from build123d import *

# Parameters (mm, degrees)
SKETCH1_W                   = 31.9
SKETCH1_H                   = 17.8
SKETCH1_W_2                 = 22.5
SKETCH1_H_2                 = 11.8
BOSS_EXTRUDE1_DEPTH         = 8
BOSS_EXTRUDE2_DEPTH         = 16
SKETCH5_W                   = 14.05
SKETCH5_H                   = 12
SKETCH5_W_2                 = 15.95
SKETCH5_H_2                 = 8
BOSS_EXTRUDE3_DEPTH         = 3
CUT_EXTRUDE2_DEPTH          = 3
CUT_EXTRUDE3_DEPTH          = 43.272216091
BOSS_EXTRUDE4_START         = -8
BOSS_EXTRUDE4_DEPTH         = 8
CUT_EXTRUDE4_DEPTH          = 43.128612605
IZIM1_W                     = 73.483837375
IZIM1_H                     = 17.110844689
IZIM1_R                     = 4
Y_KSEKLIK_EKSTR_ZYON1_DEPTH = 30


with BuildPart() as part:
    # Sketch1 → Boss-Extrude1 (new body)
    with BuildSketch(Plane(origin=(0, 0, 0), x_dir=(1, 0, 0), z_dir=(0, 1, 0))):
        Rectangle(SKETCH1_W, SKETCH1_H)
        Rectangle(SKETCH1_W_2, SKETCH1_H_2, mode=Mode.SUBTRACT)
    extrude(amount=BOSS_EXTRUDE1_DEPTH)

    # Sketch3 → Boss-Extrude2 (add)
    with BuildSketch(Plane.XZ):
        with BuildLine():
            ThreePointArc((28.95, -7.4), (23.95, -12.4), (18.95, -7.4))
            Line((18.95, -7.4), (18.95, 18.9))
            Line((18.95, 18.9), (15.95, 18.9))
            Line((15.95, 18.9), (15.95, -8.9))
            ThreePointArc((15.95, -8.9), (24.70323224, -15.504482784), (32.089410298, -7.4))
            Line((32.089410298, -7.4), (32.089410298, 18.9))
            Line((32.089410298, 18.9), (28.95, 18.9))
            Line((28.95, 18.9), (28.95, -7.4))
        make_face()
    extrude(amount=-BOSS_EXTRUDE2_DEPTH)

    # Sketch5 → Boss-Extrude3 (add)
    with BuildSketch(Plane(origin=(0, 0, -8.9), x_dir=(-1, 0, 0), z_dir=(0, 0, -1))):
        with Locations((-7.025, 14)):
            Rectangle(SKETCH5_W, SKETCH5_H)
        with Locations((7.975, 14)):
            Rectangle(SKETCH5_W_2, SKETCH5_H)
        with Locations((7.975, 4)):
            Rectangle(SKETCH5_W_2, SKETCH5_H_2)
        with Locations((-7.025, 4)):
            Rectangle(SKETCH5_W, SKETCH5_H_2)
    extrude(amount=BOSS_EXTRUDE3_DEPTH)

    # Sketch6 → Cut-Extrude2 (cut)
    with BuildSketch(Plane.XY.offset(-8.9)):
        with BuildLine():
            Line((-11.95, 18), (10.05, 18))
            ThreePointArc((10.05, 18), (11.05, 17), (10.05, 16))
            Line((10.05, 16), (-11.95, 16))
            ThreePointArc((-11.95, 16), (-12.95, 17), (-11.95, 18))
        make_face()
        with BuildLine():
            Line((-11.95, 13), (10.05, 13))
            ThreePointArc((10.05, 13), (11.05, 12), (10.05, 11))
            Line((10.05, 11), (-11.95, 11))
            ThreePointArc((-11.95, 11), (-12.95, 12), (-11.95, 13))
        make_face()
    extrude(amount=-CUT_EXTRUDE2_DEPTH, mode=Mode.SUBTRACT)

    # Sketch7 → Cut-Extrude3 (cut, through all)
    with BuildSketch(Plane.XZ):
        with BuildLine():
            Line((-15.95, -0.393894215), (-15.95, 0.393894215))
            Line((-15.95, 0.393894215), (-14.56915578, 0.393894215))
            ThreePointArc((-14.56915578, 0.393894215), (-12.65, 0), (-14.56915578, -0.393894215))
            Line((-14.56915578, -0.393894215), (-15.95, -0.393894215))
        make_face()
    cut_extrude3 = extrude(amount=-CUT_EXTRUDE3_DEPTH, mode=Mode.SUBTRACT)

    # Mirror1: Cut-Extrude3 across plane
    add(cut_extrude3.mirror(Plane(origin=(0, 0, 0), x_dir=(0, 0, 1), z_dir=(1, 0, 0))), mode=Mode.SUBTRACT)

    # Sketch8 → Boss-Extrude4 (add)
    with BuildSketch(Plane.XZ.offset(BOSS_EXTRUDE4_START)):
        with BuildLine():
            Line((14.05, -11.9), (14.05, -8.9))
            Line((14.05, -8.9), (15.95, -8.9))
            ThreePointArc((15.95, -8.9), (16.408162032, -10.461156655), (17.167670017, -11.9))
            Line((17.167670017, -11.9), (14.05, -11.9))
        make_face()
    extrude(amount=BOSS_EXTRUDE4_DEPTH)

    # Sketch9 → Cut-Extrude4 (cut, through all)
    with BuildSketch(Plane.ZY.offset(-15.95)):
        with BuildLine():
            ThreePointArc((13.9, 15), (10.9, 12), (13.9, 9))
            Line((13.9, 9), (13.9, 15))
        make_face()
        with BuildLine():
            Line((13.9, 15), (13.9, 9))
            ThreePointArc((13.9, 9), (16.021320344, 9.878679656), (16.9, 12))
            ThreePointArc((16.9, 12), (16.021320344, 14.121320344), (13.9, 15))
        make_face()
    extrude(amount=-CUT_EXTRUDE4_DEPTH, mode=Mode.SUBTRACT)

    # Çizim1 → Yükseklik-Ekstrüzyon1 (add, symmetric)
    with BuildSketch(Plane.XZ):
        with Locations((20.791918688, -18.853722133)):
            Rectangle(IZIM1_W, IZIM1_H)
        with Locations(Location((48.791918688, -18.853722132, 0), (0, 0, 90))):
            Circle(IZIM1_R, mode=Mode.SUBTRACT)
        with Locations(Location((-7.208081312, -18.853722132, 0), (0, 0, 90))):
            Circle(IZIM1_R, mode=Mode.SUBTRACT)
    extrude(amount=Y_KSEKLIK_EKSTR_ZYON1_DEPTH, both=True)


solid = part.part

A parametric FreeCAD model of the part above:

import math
import FreeCAD as App
import Part
import Sketcher
Q = App.Units.Quantity

doc = App.newDocument("Part")
body = doc.addObject("PartDesign::Body", "Body")

sketch1 = doc.addObject("Sketcher::SketchObject", "Sketch")
body.addObject(sketch1)
sketch1.AttachmentSupport = (doc.XZ_Plane, [""])
sketch1.MapMode = "FlatFace"
sketch1.addGeometry([
    Part.LineSegment(App.Vector(-15.95, -8.9, 0), App.Vector(-15.95, 8.9, 0)),
    Part.LineSegment(App.Vector(-15.95, 8.9, 0), App.Vector(15.95, 8.9, 0)),
    Part.LineSegment(App.Vector(15.95, 8.9, 0), App.Vector(15.95, -8.9, 0)),
    Part.LineSegment(App.Vector(15.95, -8.9, 0), App.Vector(-15.95, -8.9, 0)),
    Part.LineSegment(App.Vector(11.25, 5.9, 0), App.Vector(-11.25, 5.9, 0)),
    Part.LineSegment(App.Vector(-11.25, 5.9, 0), App.Vector(-11.25, -5.9, 0)),
    Part.LineSegment(App.Vector(-11.25, -5.9, 0), App.Vector(11.25, -5.9, 0)),
    Part.LineSegment(App.Vector(11.25, -5.9, 0), App.Vector(11.25, 5.9, 0)),
], False)
sketch1.addConstraint([
    Sketcher.Constraint("Coincident", 0, 2, 1, 1),
    Sketcher.Constraint("Coincident", 1, 2, 2, 1),
    Sketcher.Constraint("Coincident", 2, 2, 3, 1),
    Sketcher.Constraint("Coincident", 3, 2, 0, 1),
    Sketcher.Constraint("Coincident", 4, 2, 5, 1),
    Sketcher.Constraint("Coincident", 5, 2, 6, 1),
    Sketcher.Constraint("Coincident", 6, 2, 7, 1),
    Sketcher.Constraint("Coincident", 7, 2, 4, 1),
    Sketcher.Constraint("Vertical", 0),
    Sketcher.Constraint("Horizontal", 1),
    Sketcher.Constraint("Vertical", 2),
    Sketcher.Constraint("Horizontal", 3),
    Sketcher.Constraint("Horizontal", 4),
    Sketcher.Constraint("Vertical", 5),
    Sketcher.Constraint("Horizontal", 6),
    Sketcher.Constraint("Vertical", 7),
    Sketcher.Constraint("Symmetric", 0, 2, 2, 2, -1, 1),
    Sketcher.Constraint("Symmetric", 4, 2, 6, 2, -1, 1),
    Sketcher.Constraint("DistanceX", 1, 1, 1, 2, Q("31.9 mm")),
    Sketcher.Constraint("DistanceX", 4, 2, 4, 1, Q("22.5 mm")),
    Sketcher.Constraint("DistanceY", 0, 1, 0, 2, Q("17.8 mm")),
    Sketcher.Constraint("DistanceY", 5, 2, 5, 1, Q("11.8 mm")),
])
pad1 = doc.addObject("PartDesign::Pad", "Pad")
body.addObject(pad1)
pad1.Profile = sketch1
pad1.Length = 8
pad1.Reversed = True

sketch2 = doc.addObject("Sketcher::SketchObject", "Sketch001")
body.addObject(sketch2)
sketch2.AttachmentSupport = (doc.XZ_Plane, [""])
sketch2.MapMode = "FlatFace"
sketch2.addGeometry([
    Part.ArcOfCircle(Part.Circle(App.Vector(23.95, -7.4, 0), App.Vector(0, 0, 1), 5), math.radians(180), math.radians(360)),
    Part.LineSegment(App.Vector(18.95, -7.4, 0), App.Vector(18.95, 18.9, 0)),
    Part.LineSegment(App.Vector(18.95, 18.9, 0), App.Vector(15.95, 18.9, 0)),
    Part.LineSegment(App.Vector(15.95, 18.9, 0), App.Vector(15.95, -8.9, 0)),
    Part.ArcOfCircle(Part.Circle(App.Vector(23.95, -7.4, 0), App.Vector(0, 0, 1), 8.13941), math.radians(-169.380345), math.radians(0)),
    Part.LineSegment(App.Vector(32.08941, -7.4, 0), App.Vector(32.08941, 18.9, 0)),
    Part.LineSegment(App.Vector(32.08941, 18.9, 0), App.Vector(28.95, 18.9, 0)),
    Part.LineSegment(App.Vector(28.95, 18.9, 0), App.Vector(28.95, -7.4, 0)),
], False)
sketch2.addConstraint([
    Sketcher.Constraint("Tangent", 0, 1, 1, 1),
    Sketcher.Constraint("Coincident", 1, 2, 2, 1),
    Sketcher.Constraint("Coincident", 2, 2, 3, 1),
    Sketcher.Constraint("Coincident", 3, 2, 4, 1),
    Sketcher.Constraint("Tangent", 4, 2, 5, 1),
    Sketcher.Constraint("Coincident", 5, 2, 6, 1),
    Sketcher.Constraint("Coincident", 6, 2, 7, 1),
    Sketcher.Constraint("Tangent", 7, 2, 0, 2),
    Sketcher.Constraint("Vertical", 1),
    Sketcher.Constraint("Horizontal", 2),
    Sketcher.Constraint("Vertical", 3),
    Sketcher.Constraint("Vertical", 5),
    Sketcher.Constraint("Horizontal", 6),
    Sketcher.Constraint("Vertical", 7),
    Sketcher.Constraint("Coincident", 4, 3, 0, 3),
    Sketcher.Constraint("Horizontal", 2, 2, 5, 2),
    Sketcher.Constraint("Radius", 0, Q("5 mm")),
    Sketcher.Constraint("DistanceX", 2, 2, 2, 1, Q("3 mm")),
    Sketcher.Constraint("DistanceY", 1, 1, 1, 2, Q("26.3 mm")),
    Sketcher.Constraint("DistanceY", 3, 2, 3, 1, Q("27.8 mm")),
    Sketcher.Constraint("DistanceY", 0, 3, -1, 1, Q("7.4 mm")),
    Sketcher.Constraint("DistanceX", -1, 1, 0, 3, Q("23.95 mm")),
])
pad2 = doc.addObject("PartDesign::Pad", "Pad001")
body.addObject(pad2)
pad2.Profile = sketch2
pad2.Length = 16
pad2.Reversed = True

sketch3 = doc.addObject("Sketcher::SketchObject", "Sketch002")
body.addObject(sketch3)
sketch3.AttachmentSupport = (doc.XY_Plane, [""])
sketch3.MapMode = "FlatFace"
sketch3.AttachmentOffset = App.Placement(App.Vector(0, 0, -8.9), App.Rotation())
sketch3.addGeometry([
    Part.LineSegment(App.Vector(14.05, 20, 0), App.Vector(14.05, 0, 0)),
    Part.LineSegment(App.Vector(14.05, 0, 0), App.Vector(-15.95, 0, 0)),
    Part.LineSegment(App.Vector(-15.95, 0, 0), App.Vector(-15.95, 20, 0)),
    Part.LineSegment(App.Vector(-15.95, 20, 0), App.Vector(14.05, 20, 0)),
], False)
sketch3.addConstraint([
    Sketcher.Constraint("Coincident", 0, 2, 1, 1),
    Sketcher.Constraint("Coincident", 1, 2, 2, 1),
    Sketcher.Constraint("Coincident", 2, 2, 3, 1),
    Sketcher.Constraint("Coincident", 3, 2, 0, 1),
    Sketcher.Constraint("Vertical", 0),
    Sketcher.Constraint("Horizontal", 1),
    Sketcher.Constraint("Vertical", 2),
    Sketcher.Constraint("Horizontal", 3),
    Sketcher.Constraint("PointOnObject", 0, 2, -1),
    Sketcher.Constraint("DistanceX", 1, 2, 1, 1, Q("30 mm")),
    Sketcher.Constraint("DistanceY", 0, 2, 0, 1, Q("20 mm")),
    Sketcher.Constraint("DistanceX", -1, 1, 0, 2, Q("14.05 mm")),
])
pad3 = doc.addObject("PartDesign::Pad", "Pad002")
body.addObject(pad3)
pad3.Profile = sketch3
pad3.Length = 3
pad3.Reversed = True

sketch4 = doc.addObject("Sketcher::SketchObject", "Sketch003")
body.addObject(sketch4)
sketch4.AttachmentSupport = (doc.XY_Plane, [""])
sketch4.MapMode = "FlatFace"
sketch4.AttachmentOffset = App.Placement(App.Vector(0, 0, -8.9), App.Rotation())
sketch4.addGeometry([
    Part.LineSegment(App.Vector(10.05, 18, 0), App.Vector(-11.95, 18, 0)),
    Part.ArcOfCircle(Part.Circle(App.Vector(-11.95, 17, 0), App.Vector(0, 0, 1), 1), math.radians(90), math.radians(270)),
    Part.LineSegment(App.Vector(-11.95, 16, 0), App.Vector(10.05, 16, 0)),
    Part.ArcOfCircle(Part.Circle(App.Vector(10.05, 17, 0), App.Vector(0, 0, 1), 1), math.radians(-90), math.radians(90)),
    Part.LineSegment(App.Vector(10.05, 13, 0), App.Vector(-11.95, 13, 0)),
    Part.ArcOfCircle(Part.Circle(App.Vector(-11.95, 12, 0), App.Vector(0, 0, 1), 1), math.radians(90), math.radians(270)),
    Part.LineSegment(App.Vector(-11.95, 11, 0), App.Vector(10.05, 11, 0)),
    Part.ArcOfCircle(Part.Circle(App.Vector(10.05, 12, 0), App.Vector(0, 0, 1), 1), math.radians(-90), math.radians(90)),
], False)
sketch4.addConstraint([
    Sketcher.Constraint("Tangent", 0, 2, 1, 1),
    Sketcher.Constraint("Tangent", 1, 2, 2, 1),
    Sketcher.Constraint("Tangent", 2, 2, 3, 1),
    Sketcher.Constraint("Tangent", 3, 2, 0, 1),
    Sketcher.Constraint("Tangent", 4, 2, 5, 1),
    Sketcher.Constraint("Tangent", 5, 2, 6, 1),
    Sketcher.Constraint("Tangent", 6, 2, 7, 1),
    Sketcher.Constraint("Tangent", 7, 2, 4, 1),
    Sketcher.Constraint("Horizontal", 0),
    Sketcher.Constraint("Horizontal", 2),
    Sketcher.Constraint("Horizontal", 4),
    Sketcher.Constraint("Horizontal", 6),
    Sketcher.Constraint("Equal", 3, 5),
    Sketcher.Constraint("Vertical", 1, 3, 5, 3),
    Sketcher.Constraint("Vertical", 3, 3, 7, 3),
    Sketcher.Constraint("Radius", 1, Q("1 mm")),
    Sketcher.Constraint("DistanceX", 0, 2, 0, 1, Q("22 mm")),
    Sketcher.Constraint("DistanceY", -1, 1, 1, 3, Q("17 mm")),
    Sketcher.Constraint("DistanceY", -1, 1, 5, 3, Q("12 mm")),
    Sketcher.Constraint("DistanceX", 1, 3, -1, 1, Q("11.95 mm")),
])
pocket1 = doc.addObject("PartDesign::Pocket", "Pocket")
body.addObject(pocket1)
pocket1.Profile = sketch4
pocket1.Length = 3

sketch5 = doc.addObject("Sketcher::SketchObject", "Sketch004")
body.addObject(sketch5)
sketch5.AttachmentSupport = (doc.XZ_Plane, [""])
sketch5.MapMode = "FlatFace"
sketch5.addGeometry([
    Part.LineSegment(App.Vector(-15.95, 0.393894, 0), App.Vector(-15.95, -0.393894, 0)),
    Part.LineSegment(App.Vector(-15.95, -0.393894, 0), App.Vector(-14.569156, -0.393894, 0)),
    Part.ArcOfCircle(Part.Circle(App.Vector(-13.65, 0, 0), App.Vector(0, 0, 1), 1), math.radians(-156.802973), math.radians(156.802973)),
    Part.LineSegment(App.Vector(-14.569156, 0.393894, 0), App.Vector(-15.95, 0.393894, 0)),
], False)
sketch5.addConstraint([
    Sketcher.Constraint("Coincident", 0, 2, 1, 1),
    Sketcher.Constraint("Coincident", 1, 2, 2, 1),
    Sketcher.Constraint("Coincident", 2, 2, 3, 1),
    Sketcher.Constraint("Coincident", 3, 2, 0, 1),
    Sketcher.Constraint("Vertical", 0),
    Sketcher.Constraint("Horizontal", 1),
    Sketcher.Constraint("Horizontal", 3),
    Sketcher.Constraint("Symmetric", 1, 2, 2, 2, -1),
    Sketcher.Constraint("Radius", 2, Q("1 mm")),
    Sketcher.Constraint("DistanceX", 0, 2, 2, 3, Q("2.3 mm")),
    Sketcher.Constraint("DistanceX", 2, 3, -1, 1, Q("13.65 mm")),
    Sketcher.Constraint("DistanceY", 0, 2, 0, 1, Q("0.787788 mm")),
])
pocket2 = doc.addObject("PartDesign::Pocket", "Pocket001")
body.addObject(pocket2)
pocket2.Profile = sketch5
pocket2.Type = "ThroughAll"
doc.recompute()

mirrored = doc.addObject("PartDesign::Mirrored", "Mirrored")
body.addObject(mirrored)
mirrored.Originals = [pocket2]
mirrored.MirrorPlane = (doc.YZ_Plane, [""])
body.Tip = mirrored

sketch6 = doc.addObject("Sketcher::SketchObject", "Sketch005")
body.addObject(sketch6)
sketch6.AttachmentSupport = (doc.XZ_Plane, [""])
sketch6.MapMode = "FlatFace"
sketch6.AttachmentOffset = App.Placement(App.Vector(0, 0, -8), App.Rotation())
sketch6.addGeometry([
    Part.LineSegment(App.Vector(14.05, -8.9, 0), App.Vector(14.05, -11.9, 0)),
    Part.LineSegment(App.Vector(14.05, -11.9, 0), App.Vector(17.16767, -11.9, 0)),
    Part.ArcOfCircle(Part.Circle(App.Vector(23.95, -7.4, 0), App.Vector(0, 0, 1), 8.13941), math.radians(-169.380345), math.radians(-146.436172)),
    Part.LineSegment(App.Vector(15.95, -8.9, 0), App.Vector(14.05, -8.9, 0)),
], False)
sketch6.addConstraint([
    Sketcher.Constraint("Coincident", 0, 2, 1, 1),
    Sketcher.Constraint("Coincident", 1, 2, 2, 2),
    Sketcher.Constraint("Coincident", 2, 1, 3, 1),
    Sketcher.Constraint("Coincident", 3, 2, 0, 1),
    Sketcher.Constraint("Vertical", 0),
    Sketcher.Constraint("Horizontal", 1),
    Sketcher.Constraint("Horizontal", 3),
    Sketcher.Constraint("DistanceY", 0, 2, 0, 1, Q("3 mm")),
    Sketcher.Constraint("DistanceX", 3, 2, 3, 1, Q("1.9 mm")),
    Sketcher.Constraint("DistanceX", 2, 1, 2, 3, Q("8 mm")),
    Sketcher.Constraint("DistanceY", 2, 3, -1, 1, Q("7.4 mm")),
    Sketcher.Constraint("DistanceY", 0, 2, -1, 1, Q("11.9 mm")),
    Sketcher.Constraint("DistanceX", -1, 1, 2, 3, Q("23.95 mm")),
])
pad4 = doc.addObject("PartDesign::Pad", "Pad003")
body.addObject(pad4)
pad4.Profile = sketch6
pad4.Length = 8

sketch7 = doc.addObject("Sketcher::SketchObject", "Sketch006")
body.addObject(sketch7)
sketch7.AttachmentSupport = (doc.YZ_Plane, [""])
sketch7.MapMode = "FlatFace"
sketch7.AttachmentOffset = App.Placement(App.Vector(0, 0, 15.95), App.Rotation())
sketch7.addGeometry([
    Part.ArcOfCircle(Part.Circle(App.Vector(12, 13.9, 0), App.Vector(0, 0, 1), 3), math.radians(180), math.radians(360)),
    Part.ArcOfCircle(Part.Circle(App.Vector(12, 13.9, 0), App.Vector(0, 0, 1), 3), math.radians(90), math.radians(180)),
    Part.ArcOfCircle(Part.Circle(App.Vector(12, 13.9, 0), App.Vector(0, 0, 1), 3), math.radians(0), math.radians(90)),
], False)
sketch7.addConstraint([
    Sketcher.Constraint("Tangent", 0, 1, 1, 2),
    Sketcher.Constraint("Tangent", 1, 1, 2, 2),
    Sketcher.Constraint("Tangent", 2, 1, 0, 2),
    Sketcher.Constraint("Horizontal", 2, 3, 0, 1),
    Sketcher.Constraint("Horizontal", 0, 1, 2, 1),
    Sketcher.Constraint("Vertical", 2, 3, 1, 1),
    Sketcher.Constraint("Radius", 0, Q("3 mm")),
    Sketcher.Constraint("DistanceX", -1, 1, 0, 3, Q("12 mm")),
    Sketcher.Constraint("DistanceY", -1, 1, 0, 3, Q("13.9 mm")),
])
pocket3 = doc.addObject("PartDesign::Pocket", "Pocket002")
body.addObject(pocket3)
pocket3.Profile = sketch7
pocket3.Type = "ThroughAll"
pocket3.Reversed = True

sketch8 = doc.addObject("Sketcher::SketchObject", "Sketch007")
body.addObject(sketch8)
sketch8.AttachmentSupport = (doc.XZ_Plane, [""])
sketch8.MapMode = "FlatFace"
sketch8.addGeometry([
    Part.LineSegment(App.Vector(-15.95, -10.2983, 0), App.Vector(-15.95, -27.409144, 0)),
    Part.LineSegment(App.Vector(-15.95, -27.409144, 0), App.Vector(57.533837, -27.409144, 0)),
    Part.LineSegment(App.Vector(57.533837, -27.409144, 0), App.Vector(57.533837, -10.2983, 0)),
    Part.LineSegment(App.Vector(57.533837, -10.2983, 0), App.Vector(-15.95, -10.2983, 0)),
    Part.Circle(App.Vector(-7.208081, -18.853722, 0), App.Vector(0, 0, 1), 4),
    Part.Circle(App.Vector(48.791919, -18.853722, 0), App.Vector(0, 0, 1), 4),
], False)
sketch8.addConstraint([
    Sketcher.Constraint("Coincident", 0, 2, 1, 1),
    Sketcher.Constraint("Coincident", 1, 2, 2, 1),
    Sketcher.Constraint("Coincident", 2, 2, 3, 1),
    Sketcher.Constraint("Coincident", 3, 2, 0, 1),
    Sketcher.Constraint("Vertical", 0),
    Sketcher.Constraint("Horizontal", 1),
    Sketcher.Constraint("Vertical", 2),
    Sketcher.Constraint("Horizontal", 3),
    Sketcher.Constraint("Equal", 4, 5),
    Sketcher.Constraint("Horizontal", 4, 3, 5, 3),
    Sketcher.Constraint("Diameter", 4, Q("8 mm")),
    Sketcher.Constraint("DistanceX", 4, 3, 5, 3, Q("56 mm")),
    Sketcher.Constraint("DistanceX", 0, 2, -1, 1, Q("15.95 mm")),
    Sketcher.Constraint("DistanceY", 2, 2, -1, 1, Q("10.2983 mm")),
    Sketcher.Constraint("DistanceX", 1, 1, 1, 2, Q("73.483837 mm")),
    Sketcher.Constraint("DistanceY", 0, 2, 0, 1, Q("17.110845 mm")),
    Sketcher.Constraint("DistanceX", 4, 3, -1, 1, Q("7.208081 mm")),
    Sketcher.Constraint("DistanceY", 4, 3, -1, 1, Q("18.853722 mm")),
])
pad5 = doc.addObject("PartDesign::Pad", "Pad004")
body.addObject(pad5)
pad5.Profile = sketch8
pad5.Length = 60
pad5.Midplane = True

doc.recompute()
